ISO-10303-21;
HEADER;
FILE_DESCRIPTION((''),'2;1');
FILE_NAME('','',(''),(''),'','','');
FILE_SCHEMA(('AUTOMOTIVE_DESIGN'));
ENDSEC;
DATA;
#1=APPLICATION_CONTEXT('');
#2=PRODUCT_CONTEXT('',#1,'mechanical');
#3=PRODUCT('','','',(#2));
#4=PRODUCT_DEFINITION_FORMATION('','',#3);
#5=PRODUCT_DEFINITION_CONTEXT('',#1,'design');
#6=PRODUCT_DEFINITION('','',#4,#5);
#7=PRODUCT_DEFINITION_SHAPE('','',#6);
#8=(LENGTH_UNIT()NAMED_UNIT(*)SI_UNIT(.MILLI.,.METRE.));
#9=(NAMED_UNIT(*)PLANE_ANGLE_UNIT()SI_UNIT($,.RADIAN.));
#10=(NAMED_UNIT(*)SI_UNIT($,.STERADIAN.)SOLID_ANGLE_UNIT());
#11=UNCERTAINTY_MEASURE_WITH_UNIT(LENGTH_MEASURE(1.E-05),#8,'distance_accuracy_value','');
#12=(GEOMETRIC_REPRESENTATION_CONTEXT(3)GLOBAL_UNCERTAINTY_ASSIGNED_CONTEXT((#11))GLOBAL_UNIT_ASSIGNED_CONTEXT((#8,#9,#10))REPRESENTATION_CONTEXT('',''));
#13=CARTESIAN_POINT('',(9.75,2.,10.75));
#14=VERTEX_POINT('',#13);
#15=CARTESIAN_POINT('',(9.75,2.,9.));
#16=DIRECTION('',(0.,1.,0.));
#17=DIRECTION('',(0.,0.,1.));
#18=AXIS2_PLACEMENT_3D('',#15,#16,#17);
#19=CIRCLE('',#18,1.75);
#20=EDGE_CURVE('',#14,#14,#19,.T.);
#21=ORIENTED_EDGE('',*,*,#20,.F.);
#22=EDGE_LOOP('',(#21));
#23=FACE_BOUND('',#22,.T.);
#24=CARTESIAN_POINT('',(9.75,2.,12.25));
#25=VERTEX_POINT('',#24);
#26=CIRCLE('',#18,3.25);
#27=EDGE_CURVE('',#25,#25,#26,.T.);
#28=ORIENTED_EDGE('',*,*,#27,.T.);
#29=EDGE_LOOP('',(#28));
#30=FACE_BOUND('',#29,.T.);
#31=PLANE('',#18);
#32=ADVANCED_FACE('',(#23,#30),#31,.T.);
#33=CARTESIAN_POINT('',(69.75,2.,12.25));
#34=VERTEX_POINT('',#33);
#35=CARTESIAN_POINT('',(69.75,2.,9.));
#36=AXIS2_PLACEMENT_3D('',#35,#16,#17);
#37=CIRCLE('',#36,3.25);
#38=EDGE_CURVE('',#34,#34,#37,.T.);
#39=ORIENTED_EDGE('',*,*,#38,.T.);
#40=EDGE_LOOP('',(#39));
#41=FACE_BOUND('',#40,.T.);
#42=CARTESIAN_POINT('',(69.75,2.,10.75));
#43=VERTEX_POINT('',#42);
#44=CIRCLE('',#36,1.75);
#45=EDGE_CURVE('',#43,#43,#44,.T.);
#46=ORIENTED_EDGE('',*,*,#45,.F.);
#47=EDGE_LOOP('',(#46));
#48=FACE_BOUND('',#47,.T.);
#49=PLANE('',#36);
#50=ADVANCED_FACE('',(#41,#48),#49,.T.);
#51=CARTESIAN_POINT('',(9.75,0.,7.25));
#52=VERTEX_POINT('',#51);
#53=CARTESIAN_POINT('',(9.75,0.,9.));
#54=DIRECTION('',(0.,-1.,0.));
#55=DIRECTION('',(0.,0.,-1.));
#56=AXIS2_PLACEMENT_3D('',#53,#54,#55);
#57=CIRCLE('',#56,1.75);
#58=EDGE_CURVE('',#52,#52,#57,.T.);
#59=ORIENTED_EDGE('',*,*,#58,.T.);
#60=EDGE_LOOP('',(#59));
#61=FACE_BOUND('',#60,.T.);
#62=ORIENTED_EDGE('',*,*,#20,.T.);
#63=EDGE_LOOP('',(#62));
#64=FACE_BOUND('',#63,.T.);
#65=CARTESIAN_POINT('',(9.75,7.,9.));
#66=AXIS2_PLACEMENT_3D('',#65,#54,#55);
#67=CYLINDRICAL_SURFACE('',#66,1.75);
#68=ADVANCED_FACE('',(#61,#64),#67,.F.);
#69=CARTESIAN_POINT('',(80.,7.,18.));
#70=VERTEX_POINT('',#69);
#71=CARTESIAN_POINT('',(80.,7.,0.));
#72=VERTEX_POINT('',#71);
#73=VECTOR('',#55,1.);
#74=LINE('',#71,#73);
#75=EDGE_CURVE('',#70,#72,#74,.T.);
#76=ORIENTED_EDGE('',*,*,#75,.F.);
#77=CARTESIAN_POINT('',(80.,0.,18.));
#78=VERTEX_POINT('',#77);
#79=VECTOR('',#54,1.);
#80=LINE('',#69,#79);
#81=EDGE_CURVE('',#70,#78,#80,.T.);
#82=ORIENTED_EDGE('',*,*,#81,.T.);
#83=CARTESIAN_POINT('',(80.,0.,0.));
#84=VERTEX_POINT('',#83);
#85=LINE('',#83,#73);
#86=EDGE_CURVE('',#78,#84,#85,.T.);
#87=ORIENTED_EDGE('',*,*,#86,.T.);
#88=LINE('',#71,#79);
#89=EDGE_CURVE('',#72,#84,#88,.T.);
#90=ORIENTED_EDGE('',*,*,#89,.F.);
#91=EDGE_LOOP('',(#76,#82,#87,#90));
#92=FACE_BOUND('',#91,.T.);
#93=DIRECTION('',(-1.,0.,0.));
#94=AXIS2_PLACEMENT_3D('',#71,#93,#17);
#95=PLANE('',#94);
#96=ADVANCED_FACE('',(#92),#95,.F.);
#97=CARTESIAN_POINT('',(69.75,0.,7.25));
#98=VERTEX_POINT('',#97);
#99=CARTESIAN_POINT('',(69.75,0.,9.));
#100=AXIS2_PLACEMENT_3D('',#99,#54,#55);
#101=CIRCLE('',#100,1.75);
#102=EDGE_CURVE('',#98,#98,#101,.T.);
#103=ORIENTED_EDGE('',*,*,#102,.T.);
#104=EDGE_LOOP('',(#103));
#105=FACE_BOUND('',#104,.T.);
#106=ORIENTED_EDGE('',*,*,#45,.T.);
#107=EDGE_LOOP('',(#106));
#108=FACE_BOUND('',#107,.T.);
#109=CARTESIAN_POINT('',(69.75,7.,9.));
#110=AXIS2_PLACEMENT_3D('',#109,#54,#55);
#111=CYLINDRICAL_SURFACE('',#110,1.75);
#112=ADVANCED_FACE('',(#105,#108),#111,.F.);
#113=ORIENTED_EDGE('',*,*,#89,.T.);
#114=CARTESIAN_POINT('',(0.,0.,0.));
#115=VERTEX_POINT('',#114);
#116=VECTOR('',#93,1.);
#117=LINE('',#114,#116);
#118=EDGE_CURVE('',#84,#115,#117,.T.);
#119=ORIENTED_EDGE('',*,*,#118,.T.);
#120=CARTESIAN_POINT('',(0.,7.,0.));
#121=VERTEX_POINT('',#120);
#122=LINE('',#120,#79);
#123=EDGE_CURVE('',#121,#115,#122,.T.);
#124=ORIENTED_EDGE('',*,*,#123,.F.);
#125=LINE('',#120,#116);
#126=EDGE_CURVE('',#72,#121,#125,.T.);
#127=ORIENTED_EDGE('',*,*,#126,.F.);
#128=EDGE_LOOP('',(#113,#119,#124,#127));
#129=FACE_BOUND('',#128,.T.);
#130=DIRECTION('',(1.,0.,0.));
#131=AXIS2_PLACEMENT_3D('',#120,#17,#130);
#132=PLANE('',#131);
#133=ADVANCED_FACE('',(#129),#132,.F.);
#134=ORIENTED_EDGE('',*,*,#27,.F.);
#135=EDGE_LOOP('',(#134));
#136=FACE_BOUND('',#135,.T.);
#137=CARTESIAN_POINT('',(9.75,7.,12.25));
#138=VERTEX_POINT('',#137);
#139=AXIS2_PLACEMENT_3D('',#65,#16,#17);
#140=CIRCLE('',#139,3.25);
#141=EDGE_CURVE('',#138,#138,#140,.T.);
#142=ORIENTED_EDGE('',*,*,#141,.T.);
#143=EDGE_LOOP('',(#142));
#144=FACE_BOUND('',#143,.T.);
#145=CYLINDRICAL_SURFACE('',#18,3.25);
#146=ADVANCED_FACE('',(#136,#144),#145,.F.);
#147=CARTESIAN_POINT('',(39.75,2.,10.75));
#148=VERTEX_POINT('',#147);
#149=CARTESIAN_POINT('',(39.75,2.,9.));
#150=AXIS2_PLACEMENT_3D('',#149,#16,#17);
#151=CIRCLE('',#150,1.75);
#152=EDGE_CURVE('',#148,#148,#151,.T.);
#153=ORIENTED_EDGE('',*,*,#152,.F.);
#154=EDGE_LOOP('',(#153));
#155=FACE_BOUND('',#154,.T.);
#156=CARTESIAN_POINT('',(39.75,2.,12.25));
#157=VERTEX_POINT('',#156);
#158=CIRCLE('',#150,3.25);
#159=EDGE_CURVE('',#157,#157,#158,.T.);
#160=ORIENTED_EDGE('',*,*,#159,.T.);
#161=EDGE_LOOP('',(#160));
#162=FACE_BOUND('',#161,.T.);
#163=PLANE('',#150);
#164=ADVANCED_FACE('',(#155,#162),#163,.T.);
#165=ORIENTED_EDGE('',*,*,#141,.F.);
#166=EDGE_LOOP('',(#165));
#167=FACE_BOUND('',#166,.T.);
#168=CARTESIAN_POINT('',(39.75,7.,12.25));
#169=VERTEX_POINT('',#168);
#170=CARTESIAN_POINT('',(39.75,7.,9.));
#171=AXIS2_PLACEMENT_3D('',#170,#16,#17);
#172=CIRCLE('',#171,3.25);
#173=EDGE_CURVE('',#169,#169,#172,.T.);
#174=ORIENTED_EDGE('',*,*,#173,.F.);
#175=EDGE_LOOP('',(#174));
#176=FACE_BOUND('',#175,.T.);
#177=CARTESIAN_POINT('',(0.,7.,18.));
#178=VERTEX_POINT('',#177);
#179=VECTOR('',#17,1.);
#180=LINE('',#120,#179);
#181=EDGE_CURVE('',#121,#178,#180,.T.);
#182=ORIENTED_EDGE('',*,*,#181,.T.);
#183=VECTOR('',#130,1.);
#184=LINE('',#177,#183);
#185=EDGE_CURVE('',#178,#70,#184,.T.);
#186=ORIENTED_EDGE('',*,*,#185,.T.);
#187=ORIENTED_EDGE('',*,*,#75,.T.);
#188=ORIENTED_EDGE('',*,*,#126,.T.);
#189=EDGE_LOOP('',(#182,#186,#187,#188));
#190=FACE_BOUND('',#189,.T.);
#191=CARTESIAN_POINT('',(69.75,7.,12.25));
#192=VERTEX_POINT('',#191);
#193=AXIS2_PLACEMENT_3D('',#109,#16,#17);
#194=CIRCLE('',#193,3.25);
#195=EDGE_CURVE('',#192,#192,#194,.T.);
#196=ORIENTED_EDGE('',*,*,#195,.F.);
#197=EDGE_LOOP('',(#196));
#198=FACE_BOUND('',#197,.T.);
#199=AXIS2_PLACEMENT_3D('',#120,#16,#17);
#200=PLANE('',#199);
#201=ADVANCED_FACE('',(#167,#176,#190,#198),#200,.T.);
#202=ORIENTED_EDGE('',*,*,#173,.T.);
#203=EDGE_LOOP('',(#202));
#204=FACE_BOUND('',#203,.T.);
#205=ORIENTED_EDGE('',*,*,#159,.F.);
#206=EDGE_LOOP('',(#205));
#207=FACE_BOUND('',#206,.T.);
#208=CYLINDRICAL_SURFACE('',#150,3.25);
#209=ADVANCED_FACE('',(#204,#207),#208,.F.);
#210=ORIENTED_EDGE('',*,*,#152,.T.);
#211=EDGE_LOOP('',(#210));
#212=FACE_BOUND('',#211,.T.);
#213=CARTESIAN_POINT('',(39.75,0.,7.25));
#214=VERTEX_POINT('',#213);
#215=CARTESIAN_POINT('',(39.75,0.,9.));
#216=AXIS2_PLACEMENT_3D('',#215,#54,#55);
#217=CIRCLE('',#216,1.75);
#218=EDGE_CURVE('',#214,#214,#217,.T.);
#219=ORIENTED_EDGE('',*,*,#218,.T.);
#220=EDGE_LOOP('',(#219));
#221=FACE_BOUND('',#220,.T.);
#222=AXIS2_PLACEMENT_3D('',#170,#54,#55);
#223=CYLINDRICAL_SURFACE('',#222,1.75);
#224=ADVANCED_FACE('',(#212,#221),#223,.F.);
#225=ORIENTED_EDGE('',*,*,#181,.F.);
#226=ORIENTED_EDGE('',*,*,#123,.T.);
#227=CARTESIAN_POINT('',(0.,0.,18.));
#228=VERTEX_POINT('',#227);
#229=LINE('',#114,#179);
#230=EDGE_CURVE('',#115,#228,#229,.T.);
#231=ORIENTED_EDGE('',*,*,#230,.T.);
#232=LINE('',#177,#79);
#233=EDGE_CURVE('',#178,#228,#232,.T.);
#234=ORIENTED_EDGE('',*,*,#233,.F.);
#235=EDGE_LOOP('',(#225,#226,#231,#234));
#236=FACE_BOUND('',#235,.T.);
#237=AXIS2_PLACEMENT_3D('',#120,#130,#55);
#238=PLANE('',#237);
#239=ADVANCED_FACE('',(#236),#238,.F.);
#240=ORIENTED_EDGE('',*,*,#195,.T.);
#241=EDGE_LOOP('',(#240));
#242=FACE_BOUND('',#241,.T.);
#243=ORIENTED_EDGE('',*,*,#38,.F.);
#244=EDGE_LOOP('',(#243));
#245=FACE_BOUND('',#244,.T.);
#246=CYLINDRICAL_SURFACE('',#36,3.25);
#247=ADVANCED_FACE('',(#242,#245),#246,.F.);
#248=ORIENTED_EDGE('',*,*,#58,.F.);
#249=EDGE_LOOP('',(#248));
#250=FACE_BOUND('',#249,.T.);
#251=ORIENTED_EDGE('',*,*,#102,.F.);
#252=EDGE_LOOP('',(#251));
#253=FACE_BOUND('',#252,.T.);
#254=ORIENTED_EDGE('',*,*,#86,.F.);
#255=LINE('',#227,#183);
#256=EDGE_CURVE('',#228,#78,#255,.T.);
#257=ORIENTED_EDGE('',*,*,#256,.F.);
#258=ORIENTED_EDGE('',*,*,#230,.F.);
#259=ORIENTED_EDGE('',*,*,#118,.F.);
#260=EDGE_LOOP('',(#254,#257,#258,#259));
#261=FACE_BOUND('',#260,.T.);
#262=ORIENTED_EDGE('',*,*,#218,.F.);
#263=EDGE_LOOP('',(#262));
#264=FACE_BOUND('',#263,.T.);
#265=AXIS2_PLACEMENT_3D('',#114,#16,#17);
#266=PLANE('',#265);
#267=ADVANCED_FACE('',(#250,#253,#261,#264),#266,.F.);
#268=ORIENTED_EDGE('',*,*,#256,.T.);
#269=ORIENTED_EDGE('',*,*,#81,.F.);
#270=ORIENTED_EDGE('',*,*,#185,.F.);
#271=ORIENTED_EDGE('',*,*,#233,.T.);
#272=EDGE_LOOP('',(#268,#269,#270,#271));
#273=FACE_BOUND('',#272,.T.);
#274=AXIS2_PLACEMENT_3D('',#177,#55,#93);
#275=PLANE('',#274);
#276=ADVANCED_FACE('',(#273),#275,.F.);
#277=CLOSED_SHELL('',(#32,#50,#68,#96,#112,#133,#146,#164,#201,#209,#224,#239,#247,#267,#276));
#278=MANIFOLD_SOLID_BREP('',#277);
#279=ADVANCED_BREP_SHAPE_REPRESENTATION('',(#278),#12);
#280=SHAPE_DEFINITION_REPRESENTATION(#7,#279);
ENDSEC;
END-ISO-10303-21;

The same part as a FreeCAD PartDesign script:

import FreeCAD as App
import Part
import Sketcher
from FreeCAD import Vector
Q = App.Units.Quantity

doc = App.newDocument("Part")
params = doc.addObject("Spreadsheet::Sheet", "Params")
for row, (alias, value) in enumerate([
    ("sketch1_width", "80 mm"),
    ("sketch1_height", "18 mm"),
    ("pad1_length", "7 mm"),
    ("sketch2_diameter", "6.5 mm"),
    ("pocket1_length", "5 mm"),
    ("sketch3_diameter", "3.5 mm"),
], start=1):
    params.set(f"A{row}", alias)
    params.set(f"B{row}", "=" + value)
    params.setAlias(f"B{row}", alias)

body = doc.addObject("PartDesign::Body", "Body")

sketch1 = body.newObject("Sketcher::SketchObject", "Sketch")
sketch1.AttachmentSupport = (doc.getObject("XZ_Plane"), [""])
sketch1.MapMode = "FlatFace"
sketch1.addGeometry([
    Part.LineSegment(Vector(0, 0, 0), Vector(0, 18, 0)),
    Part.LineSegment(Vector(0, 18, 0), Vector(80, 18, 0)),
    Part.LineSegment(Vector(80, 18, 0), Vector(80, 0, 0)),
    Part.LineSegment(Vector(80, 0, 0), Vector(0, 0, 0)),
], False)
sketch1.addConstraint([
    Sketcher.Constraint("Coincident", 0, 2, 1, 1),
    Sketcher.Constraint("Coincident", 1, 2, 2, 1),
    Sketcher.Constraint("Coincident", 2, 2, 3, 1),
    Sketcher.Constraint("Coincident", 3, 2, 0, 1),
    Sketcher.Constraint("Vertical", 0),
    Sketcher.Constraint("Horizontal", 1),
    Sketcher.Constraint("Vertical", 2),
    Sketcher.Constraint("Horizontal", 3),
    Sketcher.Constraint("Coincident", 3, 2, -1, 1),
    Sketcher.Constraint("DistanceX", 1, 1, 1, 2, Q("80 mm")),
    Sketcher.Constraint("DistanceY", 0, 1, 0, 2, Q("18 mm")),
])
sketch1.setExpression("Constraints[9]", "Params.sketch1_width")
sketch1.setExpression("Constraints[10]", "Params.sketch1_height")
pad1 = body.newObject("PartDesign::Pad", "Pad")
pad1.Profile = sketch1
pad1.setExpression("Length", "Params.pad1_length")
pad1.Reversed = True

sketch2 = body.newObject("Sketcher::SketchObject", "Sketch001")
sketch2.AttachmentSupport = (doc.getObject("XZ_Plane"), [""])
sketch2.MapMode = "FlatFace"
sketch2.AttachmentOffset = App.Placement(Vector(0, 0, -7), App.Rotation())
sketch2.addGeometry([
    Part.Circle(Vector(9.8, 9, 0), Vector(0, 0, 1), 3.2),
    Part.Circle(Vector(39.8, 9, 0), Vector(0, 0, 1), 3.2),
    Part.Circle(Vector(69.8, 9, 0), Vector(0, 0, 1), 3.2),
], False)
sketch2.addConstraint([
    Sketcher.Constraint("Equal", 0, 1),
    Sketcher.Constraint("Equal", 1, 2),
    Sketcher.Constraint("Horizontal", 0, 3, 1, 3),
    Sketcher.Constraint("Horizontal", 1, 3, 2, 3),
    Sketcher.Constraint("Diameter", 0, Q("6.5 mm")),
    Sketcher.Constraint("DistanceY", -1, 1, 0, 3, Q("9 mm")),
    Sketcher.Constraint("DistanceX", 0, 3, 1, 3, Q("30 mm")),
    Sketcher.Constraint("DistanceX", 1, 3, 2, 3, Q("30 mm")),
    Sketcher.Constraint("DistanceX", -1, 1, 0, 3, Q("9.75 mm")),
])
sketch2.setExpression("Constraints[4]", "Params.sketch2_diameter")
pocket1 = body.newObject("PartDesign::Pocket", "Pocket")
pocket1.Profile = sketch2
pocket1.setExpression("Length", "Params.pocket1_length")
pocket1.Reversed = True

sketch3 = body.newObject("Sketcher::SketchObject", "Sketch002")
sketch3.AttachmentSupport = (doc.getObject("XZ_Plane"), [""])
sketch3.MapMode = "FlatFace"
sketch3.addGeometry([
    Part.Circle(Vector(9.8, 9, 0), Vector(0, 0, 1), 1.8),
    Part.Circle(Vector(39.8, 9, 0), Vector(0, 0, 1), 1.8),
    Part.Circle(Vector(69.8, 9, 0), Vector(0, 0, 1), 1.8),
], False)
sketch3.addConstraint([
    Sketcher.Constraint("Equal", 0, 1),
    Sketcher.Constraint("Equal", 1, 2),
    Sketcher.Constraint("Horizontal", 0, 3, 1, 3),
    Sketcher.Constraint("Horizontal", 1, 3, 2, 3),
    Sketcher.Constraint("Diameter", 0, Q("3.5 mm")),
    Sketcher.Constraint("DistanceY", -1, 1, 0, 3, Q("9 mm")),
    Sketcher.Constraint("DistanceX", 0, 3, 1, 3, Q("30 mm")),
    Sketcher.Constraint("DistanceX", 1, 3, 2, 3, Q("30 mm")),
    Sketcher.Constraint("DistanceX", -1, 1, 0, 3, Q("9.75 mm")),
])
sketch3.setExpression("Constraints[4]", "Params.sketch3_diameter")
pocket2 = body.newObject("PartDesign::Pocket", "Pocket001")
pocket2.Profile = sketch3
pocket2.Type = "ThroughAll"

doc.recompute()
